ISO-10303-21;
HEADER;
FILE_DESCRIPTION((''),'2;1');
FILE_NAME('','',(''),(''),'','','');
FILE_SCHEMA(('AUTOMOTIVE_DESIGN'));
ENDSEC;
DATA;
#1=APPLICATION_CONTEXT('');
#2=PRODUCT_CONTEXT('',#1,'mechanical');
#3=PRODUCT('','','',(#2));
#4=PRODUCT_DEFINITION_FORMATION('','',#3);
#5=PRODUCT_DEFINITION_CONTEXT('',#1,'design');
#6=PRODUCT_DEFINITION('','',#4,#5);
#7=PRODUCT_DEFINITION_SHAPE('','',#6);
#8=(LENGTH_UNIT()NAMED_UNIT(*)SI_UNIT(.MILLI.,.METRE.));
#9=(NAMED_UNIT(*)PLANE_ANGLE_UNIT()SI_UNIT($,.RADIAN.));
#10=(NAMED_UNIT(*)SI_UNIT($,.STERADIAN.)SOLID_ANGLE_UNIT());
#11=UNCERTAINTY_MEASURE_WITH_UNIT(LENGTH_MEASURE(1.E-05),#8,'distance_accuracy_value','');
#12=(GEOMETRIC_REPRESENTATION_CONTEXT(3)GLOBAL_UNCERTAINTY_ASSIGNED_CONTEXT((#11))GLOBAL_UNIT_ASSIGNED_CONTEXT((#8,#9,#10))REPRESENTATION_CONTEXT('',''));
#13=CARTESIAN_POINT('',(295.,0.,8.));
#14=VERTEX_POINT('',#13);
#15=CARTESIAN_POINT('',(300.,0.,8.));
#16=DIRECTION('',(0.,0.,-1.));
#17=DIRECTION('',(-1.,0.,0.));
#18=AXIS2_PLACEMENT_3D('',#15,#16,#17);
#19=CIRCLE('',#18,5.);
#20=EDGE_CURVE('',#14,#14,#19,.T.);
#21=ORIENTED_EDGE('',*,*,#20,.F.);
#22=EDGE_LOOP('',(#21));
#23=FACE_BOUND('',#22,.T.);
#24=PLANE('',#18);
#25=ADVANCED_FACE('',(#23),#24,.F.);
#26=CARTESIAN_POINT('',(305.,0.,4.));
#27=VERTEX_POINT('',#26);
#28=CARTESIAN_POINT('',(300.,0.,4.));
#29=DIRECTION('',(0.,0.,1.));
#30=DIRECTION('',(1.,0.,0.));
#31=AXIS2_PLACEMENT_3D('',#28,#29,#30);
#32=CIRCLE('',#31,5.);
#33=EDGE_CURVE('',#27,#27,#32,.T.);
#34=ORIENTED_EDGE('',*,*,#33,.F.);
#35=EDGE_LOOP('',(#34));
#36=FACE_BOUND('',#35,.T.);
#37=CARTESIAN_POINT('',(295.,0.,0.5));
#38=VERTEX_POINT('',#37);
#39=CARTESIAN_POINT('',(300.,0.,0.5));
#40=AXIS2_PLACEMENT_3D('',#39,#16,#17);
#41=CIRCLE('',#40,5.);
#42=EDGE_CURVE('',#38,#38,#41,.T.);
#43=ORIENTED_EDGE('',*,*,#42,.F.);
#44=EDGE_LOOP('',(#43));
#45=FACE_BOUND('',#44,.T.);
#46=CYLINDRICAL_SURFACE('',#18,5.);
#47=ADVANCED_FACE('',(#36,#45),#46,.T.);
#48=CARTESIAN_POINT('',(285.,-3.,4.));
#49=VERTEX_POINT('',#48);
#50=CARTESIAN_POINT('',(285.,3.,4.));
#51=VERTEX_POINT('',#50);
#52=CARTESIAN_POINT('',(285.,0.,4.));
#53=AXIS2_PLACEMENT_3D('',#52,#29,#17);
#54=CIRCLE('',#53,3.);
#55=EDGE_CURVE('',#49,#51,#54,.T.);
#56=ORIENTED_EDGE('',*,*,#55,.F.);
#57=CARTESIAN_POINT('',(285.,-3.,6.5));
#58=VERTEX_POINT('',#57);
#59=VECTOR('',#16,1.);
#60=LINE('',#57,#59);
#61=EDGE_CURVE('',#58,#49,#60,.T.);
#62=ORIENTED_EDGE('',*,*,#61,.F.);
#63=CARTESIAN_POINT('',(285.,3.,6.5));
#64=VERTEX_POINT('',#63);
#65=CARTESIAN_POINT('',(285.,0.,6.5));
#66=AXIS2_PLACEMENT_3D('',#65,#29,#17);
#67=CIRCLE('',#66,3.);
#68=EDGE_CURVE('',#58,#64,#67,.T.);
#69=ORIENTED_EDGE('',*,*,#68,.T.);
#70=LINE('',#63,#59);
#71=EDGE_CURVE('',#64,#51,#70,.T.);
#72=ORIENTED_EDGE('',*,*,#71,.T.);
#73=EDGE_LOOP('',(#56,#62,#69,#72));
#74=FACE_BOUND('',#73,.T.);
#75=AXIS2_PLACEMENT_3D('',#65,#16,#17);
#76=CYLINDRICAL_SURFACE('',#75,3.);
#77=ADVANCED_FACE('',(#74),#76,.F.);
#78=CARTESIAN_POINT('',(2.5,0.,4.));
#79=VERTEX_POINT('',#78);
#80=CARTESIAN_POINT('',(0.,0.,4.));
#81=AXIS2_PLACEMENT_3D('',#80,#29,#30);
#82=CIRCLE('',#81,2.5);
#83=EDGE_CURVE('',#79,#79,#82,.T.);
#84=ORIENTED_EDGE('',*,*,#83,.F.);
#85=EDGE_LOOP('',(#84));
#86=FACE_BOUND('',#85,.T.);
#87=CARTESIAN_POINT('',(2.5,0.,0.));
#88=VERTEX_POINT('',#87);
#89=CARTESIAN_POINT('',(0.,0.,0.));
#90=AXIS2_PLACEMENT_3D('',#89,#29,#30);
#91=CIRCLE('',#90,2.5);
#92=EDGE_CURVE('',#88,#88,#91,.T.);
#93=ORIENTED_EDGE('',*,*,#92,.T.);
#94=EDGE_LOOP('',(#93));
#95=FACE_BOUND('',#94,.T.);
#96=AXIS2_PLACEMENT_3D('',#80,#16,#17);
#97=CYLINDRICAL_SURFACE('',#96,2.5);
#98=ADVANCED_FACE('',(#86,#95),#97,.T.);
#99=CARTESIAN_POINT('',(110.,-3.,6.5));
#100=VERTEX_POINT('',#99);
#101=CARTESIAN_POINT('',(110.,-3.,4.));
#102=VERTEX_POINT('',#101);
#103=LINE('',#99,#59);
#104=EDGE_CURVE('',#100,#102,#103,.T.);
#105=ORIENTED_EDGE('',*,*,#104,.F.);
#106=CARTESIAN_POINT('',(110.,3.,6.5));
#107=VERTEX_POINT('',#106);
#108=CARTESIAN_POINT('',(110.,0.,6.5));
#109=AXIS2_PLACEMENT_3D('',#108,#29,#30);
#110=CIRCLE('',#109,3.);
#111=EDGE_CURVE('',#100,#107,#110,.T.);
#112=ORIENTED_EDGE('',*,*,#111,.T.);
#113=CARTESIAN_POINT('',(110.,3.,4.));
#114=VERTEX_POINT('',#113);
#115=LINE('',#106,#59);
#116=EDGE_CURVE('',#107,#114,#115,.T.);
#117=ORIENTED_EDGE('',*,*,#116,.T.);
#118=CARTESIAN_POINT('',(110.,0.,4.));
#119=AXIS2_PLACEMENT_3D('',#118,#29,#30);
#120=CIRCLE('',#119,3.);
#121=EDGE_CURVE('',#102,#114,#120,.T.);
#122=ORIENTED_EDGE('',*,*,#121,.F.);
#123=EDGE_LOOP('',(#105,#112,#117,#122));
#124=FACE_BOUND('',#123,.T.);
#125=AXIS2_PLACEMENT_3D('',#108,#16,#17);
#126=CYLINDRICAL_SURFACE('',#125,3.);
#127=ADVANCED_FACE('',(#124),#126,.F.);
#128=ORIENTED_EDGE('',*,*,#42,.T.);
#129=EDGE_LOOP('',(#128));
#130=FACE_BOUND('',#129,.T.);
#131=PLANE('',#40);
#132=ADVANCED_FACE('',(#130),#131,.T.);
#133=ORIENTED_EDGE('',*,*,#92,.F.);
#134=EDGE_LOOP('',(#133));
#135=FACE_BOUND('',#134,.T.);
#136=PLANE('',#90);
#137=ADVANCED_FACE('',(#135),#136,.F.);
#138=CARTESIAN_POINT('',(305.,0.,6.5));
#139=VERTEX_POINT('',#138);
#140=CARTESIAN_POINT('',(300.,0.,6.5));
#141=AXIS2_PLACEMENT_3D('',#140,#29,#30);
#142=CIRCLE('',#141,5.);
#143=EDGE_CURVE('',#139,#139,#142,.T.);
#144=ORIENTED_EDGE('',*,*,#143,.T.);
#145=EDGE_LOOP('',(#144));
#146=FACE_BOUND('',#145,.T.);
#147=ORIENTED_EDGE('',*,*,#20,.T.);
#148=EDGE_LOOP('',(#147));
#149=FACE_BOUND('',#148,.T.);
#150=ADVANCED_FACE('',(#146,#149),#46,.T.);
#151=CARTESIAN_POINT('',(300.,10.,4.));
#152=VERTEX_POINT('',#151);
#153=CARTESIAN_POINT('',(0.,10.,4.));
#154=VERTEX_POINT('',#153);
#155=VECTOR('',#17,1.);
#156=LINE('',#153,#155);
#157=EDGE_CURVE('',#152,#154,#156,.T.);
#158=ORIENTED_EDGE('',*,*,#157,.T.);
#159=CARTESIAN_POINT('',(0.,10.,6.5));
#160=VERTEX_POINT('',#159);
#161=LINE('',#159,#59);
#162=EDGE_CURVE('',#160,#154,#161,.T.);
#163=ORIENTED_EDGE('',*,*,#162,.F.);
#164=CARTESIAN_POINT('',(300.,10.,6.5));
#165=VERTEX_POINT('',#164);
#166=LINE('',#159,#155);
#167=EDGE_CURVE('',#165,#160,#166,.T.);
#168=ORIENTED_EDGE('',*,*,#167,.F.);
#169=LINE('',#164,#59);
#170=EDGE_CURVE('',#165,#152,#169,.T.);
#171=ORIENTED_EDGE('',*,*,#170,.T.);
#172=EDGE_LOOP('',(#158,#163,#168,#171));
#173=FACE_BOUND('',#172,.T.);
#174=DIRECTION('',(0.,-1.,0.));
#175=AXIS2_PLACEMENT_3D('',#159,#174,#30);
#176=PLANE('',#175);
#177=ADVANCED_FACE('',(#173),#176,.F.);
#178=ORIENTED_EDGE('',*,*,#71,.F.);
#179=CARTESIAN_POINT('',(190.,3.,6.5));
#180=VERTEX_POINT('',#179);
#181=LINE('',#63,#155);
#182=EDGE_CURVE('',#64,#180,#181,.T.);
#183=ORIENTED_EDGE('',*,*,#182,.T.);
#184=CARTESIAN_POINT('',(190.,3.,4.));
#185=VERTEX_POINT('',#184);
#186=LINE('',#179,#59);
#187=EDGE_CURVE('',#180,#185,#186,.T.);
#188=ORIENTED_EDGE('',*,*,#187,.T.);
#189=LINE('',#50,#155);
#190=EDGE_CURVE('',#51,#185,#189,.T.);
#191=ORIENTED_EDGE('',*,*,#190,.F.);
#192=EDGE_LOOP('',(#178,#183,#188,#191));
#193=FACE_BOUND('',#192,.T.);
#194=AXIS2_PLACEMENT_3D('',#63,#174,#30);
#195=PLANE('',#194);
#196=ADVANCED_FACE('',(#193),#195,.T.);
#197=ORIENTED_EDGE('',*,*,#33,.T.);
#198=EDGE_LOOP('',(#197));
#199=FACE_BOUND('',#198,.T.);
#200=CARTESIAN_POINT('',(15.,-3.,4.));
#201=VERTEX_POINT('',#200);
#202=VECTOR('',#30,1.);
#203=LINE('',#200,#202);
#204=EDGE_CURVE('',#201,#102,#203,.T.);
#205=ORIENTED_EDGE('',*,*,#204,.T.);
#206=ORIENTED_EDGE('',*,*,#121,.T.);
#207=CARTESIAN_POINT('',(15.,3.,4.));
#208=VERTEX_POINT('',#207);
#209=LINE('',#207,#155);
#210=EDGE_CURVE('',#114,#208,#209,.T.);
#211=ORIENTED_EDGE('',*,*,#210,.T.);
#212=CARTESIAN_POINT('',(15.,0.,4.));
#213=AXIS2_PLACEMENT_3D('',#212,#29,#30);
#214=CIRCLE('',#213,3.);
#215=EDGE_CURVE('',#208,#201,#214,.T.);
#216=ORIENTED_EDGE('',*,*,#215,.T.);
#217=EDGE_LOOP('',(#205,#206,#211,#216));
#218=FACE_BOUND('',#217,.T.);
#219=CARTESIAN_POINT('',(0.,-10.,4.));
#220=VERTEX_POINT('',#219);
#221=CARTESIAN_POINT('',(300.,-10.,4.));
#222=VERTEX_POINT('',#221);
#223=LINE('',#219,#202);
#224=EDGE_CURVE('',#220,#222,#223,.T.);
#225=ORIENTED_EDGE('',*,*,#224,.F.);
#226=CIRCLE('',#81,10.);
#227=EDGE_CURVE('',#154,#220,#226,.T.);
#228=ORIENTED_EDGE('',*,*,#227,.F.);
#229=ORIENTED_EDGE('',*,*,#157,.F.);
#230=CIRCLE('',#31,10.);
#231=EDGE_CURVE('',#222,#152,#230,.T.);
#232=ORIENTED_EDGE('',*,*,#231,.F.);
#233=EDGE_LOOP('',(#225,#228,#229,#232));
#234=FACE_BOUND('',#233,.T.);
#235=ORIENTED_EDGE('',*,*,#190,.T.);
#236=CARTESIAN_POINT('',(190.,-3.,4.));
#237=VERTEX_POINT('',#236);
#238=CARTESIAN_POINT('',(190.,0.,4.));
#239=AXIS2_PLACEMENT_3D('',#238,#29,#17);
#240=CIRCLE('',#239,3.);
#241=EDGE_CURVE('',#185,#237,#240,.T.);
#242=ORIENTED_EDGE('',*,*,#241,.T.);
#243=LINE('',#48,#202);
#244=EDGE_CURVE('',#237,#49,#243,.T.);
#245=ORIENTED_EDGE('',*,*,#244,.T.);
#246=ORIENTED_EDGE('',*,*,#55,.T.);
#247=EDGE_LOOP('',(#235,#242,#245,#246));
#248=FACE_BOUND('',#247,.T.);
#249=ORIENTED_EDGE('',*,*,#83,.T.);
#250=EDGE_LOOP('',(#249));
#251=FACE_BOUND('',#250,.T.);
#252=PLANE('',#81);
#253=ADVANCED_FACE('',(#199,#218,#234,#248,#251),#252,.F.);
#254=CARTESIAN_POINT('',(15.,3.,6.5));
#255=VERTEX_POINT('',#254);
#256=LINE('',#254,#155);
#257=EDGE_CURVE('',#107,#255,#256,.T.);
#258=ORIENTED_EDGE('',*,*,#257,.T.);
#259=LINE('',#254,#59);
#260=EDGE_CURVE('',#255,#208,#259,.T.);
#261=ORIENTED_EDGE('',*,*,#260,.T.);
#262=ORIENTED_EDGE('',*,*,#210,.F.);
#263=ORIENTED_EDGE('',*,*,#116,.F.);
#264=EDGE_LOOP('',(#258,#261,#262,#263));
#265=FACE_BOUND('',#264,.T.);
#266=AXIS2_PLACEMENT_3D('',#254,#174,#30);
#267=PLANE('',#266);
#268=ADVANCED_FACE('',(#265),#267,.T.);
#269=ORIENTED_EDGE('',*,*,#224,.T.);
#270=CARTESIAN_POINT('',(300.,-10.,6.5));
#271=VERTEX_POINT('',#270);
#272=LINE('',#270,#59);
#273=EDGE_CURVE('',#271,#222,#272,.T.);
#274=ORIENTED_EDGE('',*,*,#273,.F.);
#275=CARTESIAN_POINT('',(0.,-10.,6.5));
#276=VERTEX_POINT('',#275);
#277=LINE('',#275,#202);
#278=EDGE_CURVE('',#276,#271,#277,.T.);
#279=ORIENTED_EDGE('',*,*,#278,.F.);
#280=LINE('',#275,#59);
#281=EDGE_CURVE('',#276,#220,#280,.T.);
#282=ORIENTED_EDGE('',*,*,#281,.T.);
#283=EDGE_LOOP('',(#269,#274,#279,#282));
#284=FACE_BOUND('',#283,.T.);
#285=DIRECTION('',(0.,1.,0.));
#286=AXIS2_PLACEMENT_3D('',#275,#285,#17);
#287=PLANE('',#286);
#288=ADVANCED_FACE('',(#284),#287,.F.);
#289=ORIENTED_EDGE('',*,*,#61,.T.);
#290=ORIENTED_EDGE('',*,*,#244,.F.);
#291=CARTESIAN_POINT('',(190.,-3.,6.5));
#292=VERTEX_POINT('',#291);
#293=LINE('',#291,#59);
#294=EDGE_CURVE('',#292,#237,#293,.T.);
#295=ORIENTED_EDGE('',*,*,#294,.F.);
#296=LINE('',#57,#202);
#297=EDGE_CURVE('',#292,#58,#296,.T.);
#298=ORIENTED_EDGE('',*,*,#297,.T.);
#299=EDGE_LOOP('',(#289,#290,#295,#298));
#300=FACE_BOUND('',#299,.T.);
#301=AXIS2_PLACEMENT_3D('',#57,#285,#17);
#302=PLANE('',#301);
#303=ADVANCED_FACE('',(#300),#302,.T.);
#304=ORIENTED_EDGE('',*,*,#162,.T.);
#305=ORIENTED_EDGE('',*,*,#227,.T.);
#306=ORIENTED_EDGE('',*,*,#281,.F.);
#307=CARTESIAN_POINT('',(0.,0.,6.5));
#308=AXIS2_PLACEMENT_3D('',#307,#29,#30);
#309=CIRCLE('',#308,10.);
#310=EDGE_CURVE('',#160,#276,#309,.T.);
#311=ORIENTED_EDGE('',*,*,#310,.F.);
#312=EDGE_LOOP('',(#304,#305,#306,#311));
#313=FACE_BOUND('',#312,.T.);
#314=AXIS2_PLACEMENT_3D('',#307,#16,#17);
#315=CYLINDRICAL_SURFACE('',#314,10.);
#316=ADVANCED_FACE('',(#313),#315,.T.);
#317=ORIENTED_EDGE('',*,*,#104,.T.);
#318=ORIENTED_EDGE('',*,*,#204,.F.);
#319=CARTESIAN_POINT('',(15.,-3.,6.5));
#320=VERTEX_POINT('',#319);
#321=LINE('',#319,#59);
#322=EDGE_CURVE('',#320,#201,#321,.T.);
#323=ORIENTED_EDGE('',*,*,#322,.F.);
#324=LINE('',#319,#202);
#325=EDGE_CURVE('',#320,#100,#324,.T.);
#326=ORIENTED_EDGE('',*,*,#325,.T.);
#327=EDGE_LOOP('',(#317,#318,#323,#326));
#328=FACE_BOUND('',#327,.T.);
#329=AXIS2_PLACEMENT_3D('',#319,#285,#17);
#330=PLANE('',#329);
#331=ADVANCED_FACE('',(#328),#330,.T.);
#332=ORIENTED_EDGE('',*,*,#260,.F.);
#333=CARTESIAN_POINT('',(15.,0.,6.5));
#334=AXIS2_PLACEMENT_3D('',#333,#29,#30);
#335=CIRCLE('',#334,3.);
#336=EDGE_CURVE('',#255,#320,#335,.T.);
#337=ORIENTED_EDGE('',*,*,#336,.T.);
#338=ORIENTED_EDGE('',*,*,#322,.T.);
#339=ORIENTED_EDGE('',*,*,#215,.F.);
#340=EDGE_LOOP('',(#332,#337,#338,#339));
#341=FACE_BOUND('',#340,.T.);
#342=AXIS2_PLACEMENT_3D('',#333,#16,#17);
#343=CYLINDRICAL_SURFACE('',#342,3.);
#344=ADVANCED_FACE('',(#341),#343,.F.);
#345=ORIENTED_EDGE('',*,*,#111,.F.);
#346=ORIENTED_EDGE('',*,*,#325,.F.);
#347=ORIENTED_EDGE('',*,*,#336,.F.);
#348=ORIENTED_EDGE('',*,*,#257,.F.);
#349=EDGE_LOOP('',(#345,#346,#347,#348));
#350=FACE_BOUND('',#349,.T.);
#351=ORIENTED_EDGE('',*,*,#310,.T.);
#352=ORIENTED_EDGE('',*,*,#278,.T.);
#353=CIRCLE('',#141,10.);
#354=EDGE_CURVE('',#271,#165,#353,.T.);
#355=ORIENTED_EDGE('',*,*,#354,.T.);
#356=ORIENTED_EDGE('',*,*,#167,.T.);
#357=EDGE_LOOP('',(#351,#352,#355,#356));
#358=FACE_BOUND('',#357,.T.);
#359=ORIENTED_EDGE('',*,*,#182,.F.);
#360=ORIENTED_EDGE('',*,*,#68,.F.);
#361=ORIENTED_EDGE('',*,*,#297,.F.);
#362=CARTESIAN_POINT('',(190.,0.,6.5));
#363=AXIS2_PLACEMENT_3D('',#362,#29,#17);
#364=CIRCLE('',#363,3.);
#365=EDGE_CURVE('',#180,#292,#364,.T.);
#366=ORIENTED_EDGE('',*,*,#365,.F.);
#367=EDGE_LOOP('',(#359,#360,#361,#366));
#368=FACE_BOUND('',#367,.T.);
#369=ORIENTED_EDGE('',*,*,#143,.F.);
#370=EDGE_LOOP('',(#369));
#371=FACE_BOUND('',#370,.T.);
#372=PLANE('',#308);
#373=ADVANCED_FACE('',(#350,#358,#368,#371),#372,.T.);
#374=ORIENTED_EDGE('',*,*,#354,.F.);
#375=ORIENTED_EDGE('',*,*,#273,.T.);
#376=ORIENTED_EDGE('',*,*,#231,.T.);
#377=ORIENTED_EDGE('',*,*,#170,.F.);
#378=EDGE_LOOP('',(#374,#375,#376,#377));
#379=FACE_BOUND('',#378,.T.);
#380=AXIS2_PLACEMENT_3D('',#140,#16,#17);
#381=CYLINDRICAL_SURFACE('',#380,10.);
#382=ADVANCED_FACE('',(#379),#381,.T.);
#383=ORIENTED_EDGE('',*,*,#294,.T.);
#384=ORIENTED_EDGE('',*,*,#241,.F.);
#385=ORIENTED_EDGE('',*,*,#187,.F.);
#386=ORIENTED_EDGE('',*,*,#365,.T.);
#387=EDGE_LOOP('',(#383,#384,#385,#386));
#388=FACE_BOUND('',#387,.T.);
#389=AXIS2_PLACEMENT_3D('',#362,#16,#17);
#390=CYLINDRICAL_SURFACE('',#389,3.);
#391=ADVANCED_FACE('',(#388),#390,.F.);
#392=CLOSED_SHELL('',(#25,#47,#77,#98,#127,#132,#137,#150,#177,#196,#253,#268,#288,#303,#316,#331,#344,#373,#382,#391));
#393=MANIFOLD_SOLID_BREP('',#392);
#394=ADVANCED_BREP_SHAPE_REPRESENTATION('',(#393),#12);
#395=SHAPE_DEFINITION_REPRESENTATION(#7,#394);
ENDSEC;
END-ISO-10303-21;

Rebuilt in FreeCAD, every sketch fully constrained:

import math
import FreeCAD as App
import Part
import Sketcher

V = App.Vector
Q = App.Units.Quantity

doc = App.newDocument("Part")
body = doc.addObject("PartDesign::Body", "Body")

# Sketch on XY plane
sketch1 = doc.addObject("Sketcher::SketchObject", "Sketch")
body.addObject(sketch1)
sketch1.AttachmentSupport = (doc.XY_Plane, [""])
sketch1.MapMode = "FlatFace"
sketch1.addGeometry(Part.Circle(V(0, 0, 0), V(0, 0, 1), 2.5), False)
sketch1.addConstraint([
    Sketcher.Constraint("Coincident", 0, 3, -1, 1),
    Sketcher.Constraint("Diameter", 0, Q("5 mm")),
])
pad1 = doc.addObject("PartDesign::Pad", "Pad")
body.addObject(pad1)
pad1.Profile = sketch1
pad1.Length = 4

# Sketch on XY plane
sketch2 = doc.addObject("Sketcher::SketchObject", "Sketch001")
body.addObject(sketch2)
sketch2.AttachmentSupport = (doc.XY_Plane, [""])
sketch2.MapMode = "FlatFace"
sketch2.AttachmentOffset = App.Placement(V(0, 0, 4), App.Rotation())
sketch2.addGeometry([
    Part.LineSegment(V(300, 10, 0), V(0, 10, 0)),  # 0
    Part.ArcOfCircle(Part.Circle(V(0, 0, 0), V(0, 0, 1), 10), math.radians(90), math.radians(270)),  # 1
    Part.LineSegment(V(0, -10, 0), V(300, -10, 0)),  # 2
    Part.ArcOfCircle(Part.Circle(V(300, 0, 0), V(0, 0, 1), 10), math.radians(-90), math.radians(90)),  # 3
    Part.ArcOfCircle(Part.Circle(V(285, 0, 0), V(0, 0, 1), 3), math.radians(-90), math.radians(90)),  # 4
    Part.LineSegment(V(285, -3, 0), V(190, -3, 0)),  # 5
    Part.ArcOfCircle(Part.Circle(V(190, 0, 0), V(0, 0, 1), 3), math.radians(90), math.radians(270)),  # 6
    Part.LineSegment(V(190, 3, 0), V(285, 3, 0)),  # 7
    Part.LineSegment(V(15, 3, 0), V(110, 3, 0)),  # 8
    Part.ArcOfCircle(Part.Circle(V(110, 0, 0), V(0, 0, 1), 3), math.radians(-90), math.radians(90)),  # 9
    Part.LineSegment(V(110, -3, 0), V(15, -3, 0)),  # 10
    Part.ArcOfCircle(Part.Circle(V(15, 0, 0), V(0, 0, 1), 3), math.radians(90), math.radians(270)),  # 11
], False)
sketch2.addConstraint([
    Sketcher.Constraint("Tangent", 0, 2, 1, 1),
    Sketcher.Constraint("Tangent", 1, 2, 2, 1),
    Sketcher.Constraint("Tangent", 2, 2, 3, 1),
    Sketcher.Constraint("Tangent", 3, 2, 0, 1),
    Sketcher.Constraint("Tangent", 4, 1, 5, 1),
    Sketcher.Constraint("Tangent", 5, 2, 6, 2),
    Sketcher.Constraint("Tangent", 6, 1, 7, 1),
    Sketcher.Constraint("Tangent", 7, 2, 4, 2),
    Sketcher.Constraint("Tangent", 8, 2, 9, 2),
    Sketcher.Constraint("Tangent", 9, 1, 10, 1),
    Sketcher.Constraint("Tangent", 10, 2, 11, 2),
    Sketcher.Constraint("Tangent", 11, 1, 8, 1),
    Sketcher.Constraint("Horizontal", 0),
    Sketcher.Constraint("Horizontal", 2),
    Sketcher.Constraint("Horizontal", 5),
    Sketcher.Constraint("Horizontal", 7),
    Sketcher.Constraint("Horizontal", 8),
    Sketcher.Constraint("Horizontal", 10),
    Sketcher.Constraint("Coincident", 1, 3, -1, 1),
    Sketcher.Constraint("Equal", 6, 9),
    Sketcher.Constraint("PointOnObject", 4, 3, -1),
    Sketcher.Constraint("PointOnObject", 9, 3, -1),
    Sketcher.Constraint("Equal", 7, 8),
    Sketcher.Constraint("Radius", 1, Q("10 mm")),
    Sketcher.Constraint("Radius", 4, Q("3 mm")),
    Sketcher.Constraint("DistanceX", 0, 2, 0, 1, Q("300 mm")),
    Sketcher.Constraint("DistanceX", 5, 2, 5, 1, Q("95 mm")),
    Sketcher.Constraint("DistanceX", -1, 1, 4, 3, Q("285 mm")),
    Sketcher.Constraint("DistanceX", -1, 1, 9, 3, Q("110 mm")),
])
pad2 = doc.addObject("PartDesign::Pad", "Pad001")
body.addObject(pad2)
pad2.Profile = sketch2
pad2.Length = 2.5

# Sketch on XY plane
sketch3 = doc.addObject("Sketcher::SketchObject", "Sketch002")
body.addObject(sketch3)
sketch3.AttachmentSupport = (doc.XY_Plane, [""])
sketch3.MapMode = "FlatFace"
sketch3.AttachmentOffset = App.Placement(V(0, 0, 4), App.Rotation())
sketch3.addGeometry(Part.Circle(V(300, 0, 0), V(0, 0, 1), 5), False)
sketch3.addConstraint([
    Sketcher.Constraint("PointOnObject", 0, 3, -1),
    Sketcher.Constraint("Diameter", 0, Q("10 mm")),
    Sketcher.Constraint("DistanceX", -1, 1, 0, 3, Q("300 mm")),
])
pad3 = doc.addObject("PartDesign::Pad", "Pad002")
body.addObject(pad3)
pad3.Profile = sketch3
pad3.Type = "TwoLengths"
pad3.Length = 3.5
pad3.Length2 = 4
pad3.Reversed = True

doc.recompute()
